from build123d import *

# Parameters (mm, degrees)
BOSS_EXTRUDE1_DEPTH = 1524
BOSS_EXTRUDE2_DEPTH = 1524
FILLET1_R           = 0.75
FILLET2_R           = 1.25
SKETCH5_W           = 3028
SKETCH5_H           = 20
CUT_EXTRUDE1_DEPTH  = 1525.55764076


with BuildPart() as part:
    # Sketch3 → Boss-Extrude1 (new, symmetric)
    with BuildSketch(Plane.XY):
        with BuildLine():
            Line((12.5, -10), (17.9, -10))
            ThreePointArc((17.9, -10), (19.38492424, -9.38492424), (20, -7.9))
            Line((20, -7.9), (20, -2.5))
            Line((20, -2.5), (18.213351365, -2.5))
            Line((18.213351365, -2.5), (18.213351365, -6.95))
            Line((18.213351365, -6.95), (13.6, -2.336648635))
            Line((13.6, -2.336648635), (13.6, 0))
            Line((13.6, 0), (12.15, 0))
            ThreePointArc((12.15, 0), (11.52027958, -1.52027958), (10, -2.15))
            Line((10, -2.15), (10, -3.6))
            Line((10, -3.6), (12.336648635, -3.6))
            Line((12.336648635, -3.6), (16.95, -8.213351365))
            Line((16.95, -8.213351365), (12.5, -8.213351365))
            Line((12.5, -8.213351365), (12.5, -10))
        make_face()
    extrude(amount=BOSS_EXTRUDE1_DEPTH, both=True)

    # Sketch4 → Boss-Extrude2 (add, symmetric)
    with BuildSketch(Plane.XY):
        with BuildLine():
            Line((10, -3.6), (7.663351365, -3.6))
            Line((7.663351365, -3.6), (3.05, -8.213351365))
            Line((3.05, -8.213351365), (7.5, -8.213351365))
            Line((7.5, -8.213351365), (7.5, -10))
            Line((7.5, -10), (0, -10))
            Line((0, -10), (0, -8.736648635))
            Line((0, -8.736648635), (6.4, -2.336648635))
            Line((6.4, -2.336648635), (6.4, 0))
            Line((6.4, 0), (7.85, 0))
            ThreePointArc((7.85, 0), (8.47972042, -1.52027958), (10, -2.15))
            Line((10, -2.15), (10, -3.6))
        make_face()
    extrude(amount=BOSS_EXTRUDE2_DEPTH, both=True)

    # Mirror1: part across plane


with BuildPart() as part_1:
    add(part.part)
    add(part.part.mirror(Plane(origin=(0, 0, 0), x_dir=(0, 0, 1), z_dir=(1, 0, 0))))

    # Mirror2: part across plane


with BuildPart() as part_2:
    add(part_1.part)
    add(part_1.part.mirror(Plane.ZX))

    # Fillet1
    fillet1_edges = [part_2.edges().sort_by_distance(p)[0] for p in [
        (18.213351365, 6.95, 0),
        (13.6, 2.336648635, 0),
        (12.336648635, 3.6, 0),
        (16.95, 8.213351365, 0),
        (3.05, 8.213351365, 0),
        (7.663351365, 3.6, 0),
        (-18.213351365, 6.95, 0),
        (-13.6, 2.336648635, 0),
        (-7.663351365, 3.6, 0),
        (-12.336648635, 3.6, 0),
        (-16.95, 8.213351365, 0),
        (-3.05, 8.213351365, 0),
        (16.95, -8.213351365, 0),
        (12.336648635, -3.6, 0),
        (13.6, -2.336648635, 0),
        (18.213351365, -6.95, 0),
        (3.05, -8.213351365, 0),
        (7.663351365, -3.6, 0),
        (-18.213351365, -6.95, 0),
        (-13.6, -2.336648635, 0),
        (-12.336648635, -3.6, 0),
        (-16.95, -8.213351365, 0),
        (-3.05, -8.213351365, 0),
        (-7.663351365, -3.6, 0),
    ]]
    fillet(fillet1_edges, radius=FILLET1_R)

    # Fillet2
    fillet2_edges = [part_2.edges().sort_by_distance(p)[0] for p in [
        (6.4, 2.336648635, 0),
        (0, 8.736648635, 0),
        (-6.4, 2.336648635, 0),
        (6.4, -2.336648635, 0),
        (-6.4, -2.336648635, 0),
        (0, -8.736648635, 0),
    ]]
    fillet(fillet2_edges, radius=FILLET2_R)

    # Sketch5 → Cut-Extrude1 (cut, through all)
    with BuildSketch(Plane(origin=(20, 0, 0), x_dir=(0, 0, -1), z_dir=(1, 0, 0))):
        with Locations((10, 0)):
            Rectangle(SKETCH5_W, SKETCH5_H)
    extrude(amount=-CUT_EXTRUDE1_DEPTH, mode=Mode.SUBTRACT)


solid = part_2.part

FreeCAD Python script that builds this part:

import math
import FreeCAD as App
import Part
import Sketcher

V = App.Vector
Q = App.Units.Quantity


def edges_at(feature, points):
    """Names of the edges that pass closest to the given points."""
    edges = feature.Shape.Edges
    near = lambda p: min(range(len(edges)), key=lambda i: edges[i].distToShape(Part.Vertex(*p))[0])
    return sorted({f"Edge{near(p) + 1}" for p in points})

doc = App.newDocument("Part")
body = doc.addObject("PartDesign::Body", "Body")

sketch1 = body.newObject("Sketcher::SketchObject", "Sketch")
sketch1.AttachmentSupport = (doc.getObject("XY_Plane"), [""])
sketch1.MapMode = "FlatFace"
sketch1.addGeometry([
    Part.LineSegment(V(12.5, -10, 0), V(17.9, -10, 0)),
    Part.ArcOfCircle(Part.Circle(V(17.9, -7.9, 0), V(0, 0, 1), 2.1), math.radians(-90), math.radians(0)),
    Part.LineSegment(V(20, -7.9, 0), V(20, -2.5, 0)),
    Part.LineSegment(V(20, -2.5, 0), V(18.2, -2.5, 0)),
    Part.LineSegment(V(18.2, -2.5, 0), V(18.2, -7, 0)),
    Part.LineSegment(V(18.2, -7, 0), V(13.6, -2.3, 0)),
    Part.LineSegment(V(13.6, -2.3, 0), V(13.6, 0, 0)),
    Part.LineSegment(V(13.6, 0, 0), V(12.2, 0, 0)),
    Part.ArcOfCircle(Part.Circle(V(10, 0, 0), V(0, 0, 1), 2.1), math.radians(-90), math.radians(0)),
    Part.LineSegment(V(10, -2.1, 0), V(10, -3.6, 0)),
    Part.LineSegment(V(10, -3.6, 0), V(12.3, -3.6, 0)),
    Part.LineSegment(V(12.3, -3.6, 0), V(16.9, -8.2, 0)),
    Part.LineSegment(V(16.9, -8.2, 0), V(12.5, -8.2, 0)),
    Part.LineSegment(V(12.5, -8.2, 0), V(12.5, -10, 0)),
], False)
sketch1.addConstraint([
    Sketcher.Constraint("Tangent", 0, 2, 1, 1),
    Sketcher.Constraint("Tangent", 1, 2, 2, 1),
    Sketcher.Constraint("Coincident", 2, 2, 3, 1),
    Sketcher.Constraint("Coincident", 3, 2, 4, 1),
    Sketcher.Constraint("Coincident", 4, 2, 5, 1),
    Sketcher.Constraint("Coincident", 5, 2, 6, 1),
    Sketcher.Constraint("Coincident", 6, 2, 7, 1),
    Sketcher.Constraint("Coincident", 7, 2, 8, 2),
    Sketcher.Constraint("Coincident", 8, 1, 9, 1),
    Sketcher.Constraint("Coincident", 9, 2, 10, 1),
    Sketcher.Constraint("Coincident", 10, 2, 11, 1),
    Sketcher.Constraint("Coincident", 11, 2, 12, 1),
    Sketcher.Constraint("Coincident", 12, 2, 13, 1),
    Sketcher.Constraint("Coincident", 13, 2, 0, 1),
    Sketcher.Constraint("Horizontal", 0),
    Sketcher.Constraint("Vertical", 2),
    Sketcher.Constraint("Horizontal", 3),
    Sketcher.Constraint("Vertical", 4),
    Sketcher.Constraint("Vertical", 6),
    Sketcher.Constraint("Horizontal", 7),
    Sketcher.Constraint("Vertical", 9),
    Sketcher.Constraint("Horizontal", 10),
    Sketcher.Constraint("Horizontal", 12),
    Sketcher.Constraint("Vertical", 13),
    Sketcher.Constraint("PointOnObject", 8, 3, -1),
    Sketcher.Constraint("PointOnObject", 6, 2, -1),
    Sketcher.Constraint("Parallel", 5, 11),
    Sketcher.Constraint("Equal", 0, 2),
    Sketcher.Constraint("Equal", 12, 4),
    Sketcher.Constraint("Equal", 10, 6),
    Sketcher.Constraint("Equal", 7, 9),
    Sketcher.Constraint("Equal", 3, 13),
    Sketcher.Constraint("Equal", 5, 11),
    Sketcher.Constraint("Radius", 1, Q("2.1 mm")),
    Sketcher.Constraint("Angle", 5, Q("135 deg")),
    Sketcher.Constraint("Radius", 8, Q("2.15 mm")),
    Sketcher.Constraint("DistanceX", 0, 1, 0, 2, Q("5.4 mm")),
    Sketcher.Constraint("DistanceX", -1, 1, 8, 3, Q("10 mm")),
    Sketcher.Constraint("DistanceY", 0, 2, -1, 1, Q("10 mm")),
    Sketcher.Constraint("DistanceX", 7, 2, 7, 1, Q("1.45 mm")),
    Sketcher.Constraint("DistanceX", 12, 2, 12, 1, Q("4.45 mm")),
    Sketcher.Constraint("DistanceX", 3, 2, 3, 1, Q("1.786649 mm")),
])
pad1 = body.newObject("PartDesign::Pad", "Pad")
pad1.Profile = sketch1
pad1.Length = 3048
pad1.Midplane = True

sketch2 = body.newObject("Sketcher::SketchObject", "Sketch001")
sketch2.AttachmentSupport = (doc.getObject("XY_Plane"), [""])
sketch2.MapMode = "FlatFace"
sketch2.addGeometry([
    Part.LineSegment(V(7.7, -3.6, 0), V(10, -3.6, 0)),
    Part.LineSegment(V(10, -3.6, 0), V(10, -2.1, 0)),
    Part.ArcOfCircle(Part.Circle(V(10, 0, 0), V(0, 0, 1), 2.1), math.radians(180), math.radians(270)),
    Part.LineSegment(V(7.8, 0, 0), V(6.4, 0, 0)),
    Part.LineSegment(V(6.4, 0, 0), V(6.4, -2.3, 0)),
    Part.LineSegment(V(6.4, -2.3, 0), V(0, -8.7, 0)),
    Part.LineSegment(V(0, -8.7, 0), V(0, -10, 0)),
    Part.LineSegment(V(0, -10, 0), V(7.5, -10, 0)),
    Part.LineSegment(V(7.5, -10, 0), V(7.5, -8.2, 0)),
    Part.LineSegment(V(7.5, -8.2, 0), V(3, -8.2, 0)),
    Part.LineSegment(V(3, -8.2, 0), V(7.7, -3.6, 0)),
], False)
sketch2.addConstraint([
    Sketcher.Constraint("Coincident", 0, 2, 1, 1),
    Sketcher.Constraint("Coincident", 1, 2, 2, 2),
    Sketcher.Constraint("Coincident", 2, 1, 3, 1),
    Sketcher.Constraint("Coincident", 3, 2, 4, 1),
    Sketcher.Constraint("Coincident", 4, 2, 5, 1),
    Sketcher.Constraint("Coincident", 5, 2, 6, 1),
    Sketcher.Constraint("Coincident", 6, 2, 7, 1),
    Sketcher.Constraint("Coincident", 7, 2, 8, 1),
    Sketcher.Constraint("Coincident", 8, 2, 9, 1),
    Sketcher.Constraint("Coincident", 9, 2, 10, 1),
    Sketcher.Constraint("Coincident", 10, 2, 0, 1),
    Sketcher.Constraint("Horizontal", 0),
    Sketcher.Constraint("Vertical", 1),
    Sketcher.Constraint("Horizontal", 3),
    Sketcher.Constraint("Vertical", 4),
    Sketcher.Constraint("Vertical", 6),
    Sketcher.Constraint("Horizontal", 7),
    Sketcher.Constraint("Vertical", 8),
    Sketcher.Constraint("Horizontal", 9),
    Sketcher.Constraint("PointOnObject", 2, 3, -1),
    Sketcher.Constraint("PointOnObject", 2, 1, -1),
    Sketcher.Constraint("PointOnObject", 5, 2, -2),
    Sketcher.Constraint("Parallel", 5, 10),
    Sketcher.Constraint("Vertical", 2, 3, 0, 2),
    Sketcher.Constraint("Equal", 3, 1),
    Sketcher.Constraint("Equal", 0, 4),
    Sketcher.Constraint("Angle", 5, Q("-135 deg")),
    Sketcher.Constraint("Radius", 2, Q("2.15 mm")),
    Sketcher.Constraint("DistanceX", 7, 1, 7, 2, Q("7.5 mm")),
    Sketcher.Constraint("DistanceX", -1, 1, 2, 3, Q("10 mm")),
    Sketcher.Constraint("DistanceY", 6, 2, -1, 1, Q("10 mm")),
    Sketcher.Constraint("DistanceX", 3, 2, 3, 1, Q("1.45 mm")),
    Sketcher.Constraint("DistanceX", 9, 2, 9, 1, Q("4.45 mm")),
    Sketcher.Constraint("DistanceX", 0, 1, 0, 2, Q("2.336649 mm")),
])
pad2 = body.newObject("PartDesign::Pad", "Pad001")
pad2.Profile = sketch2
pad2.Length = 3048
pad2.Midplane = True
body2 = doc.addObject("PartDesign::Body", "Body001")
doc.recompute()

body2.BaseFeature = body
doc.recompute()

mirroring = doc.addObject("Part::Mirroring", "Mirroring")
mirroring.Source = body
mirroring.Base = V(0, 0, 0)
mirroring.Normal = V(1, 0, 0)
body3 = doc.addObject("PartDesign::Body", "Body002")
body3.BaseFeature = mirroring
boolean = body2.newObject("PartDesign::Boolean", "Boolean")
boolean.Type = "Fuse"
boolean.addObjects([body3])
doc.recompute()
body4 = doc.addObject("PartDesign::Body", "Body003")
doc.recompute()

body4.BaseFeature = body2
doc.recompute()

mirroring2 = doc.addObject("Part::Mirroring", "Mirroring001")
mirroring2.Source = body2
mirroring2.Base = V(0, 0, 0)
mirroring2.Normal = V(0, 1, 0)
body5 = doc.addObject("PartDesign::Body", "Body004")
body5.BaseFeature = mirroring2
boolean2 = body4.newObject("PartDesign::Boolean", "Boolean001")
boolean2.Type = "Fuse"
boolean2.addObjects([body5])
doc.recompute()

fillet = body4.newObject("PartDesign::Fillet", "Fillet")
fillet.Base = (boolean2, edges_at(boolean2, [
    (18.213, 6.95, 0),
    (13.6, 2.337, 0),
    (12.337, 3.6, 0),
    (16.95, 8.213, 0),
    (3.05, 8.213, 0),
    (7.663, 3.6, 0),
    (-18.213, 6.95, 0),
    (-13.6, 2.337, 0),
    (-7.663, 3.6, 0),
    (-12.337, 3.6, 0),
    (-16.95, 8.213, 0),
    (-3.05, 8.213, 0),
    (16.95, -8.213, 0),
    (12.337, -3.6, 0),
    (13.6, -2.337, 0),
    (18.213, -6.95, 0),
    (3.05, -8.213, 0),
    (7.663, -3.6, 0),
    (-18.213, -6.95, 0),
    (-13.6, -2.337, 0),
    (-12.337, -3.6, 0),
    (-16.95, -8.213, 0),
    (-3.05, -8.213, 0),
    (-7.663, -3.6, 0),
]))
fillet.Radius = 0.75
doc.recompute()

fillet2 = body4.newObject("PartDesign::Fillet", "Fillet001")
fillet2.Base = (fillet, edges_at(fillet, [
    (6.4, 2.337, 0),
    (0, 8.737, 0),
    (-6.4, 2.337, 0),
    (6.4, -2.337, 0),
    (-6.4, -2.337, 0),
    (0, -8.737, 0),
]))
fillet2.Radius = 1.25

sketch3 = body4.newObject("Sketcher::SketchObject", "Sketch002")
sketch3.AttachmentSupport = (doc.getObject("YZ_Plane003"), [""])
sketch3.MapMode = "FlatFace"
sketch3.AttachmentOffset = App.Placement(V(0, 0, 20), App.Rotation())
sketch3.addGeometry([
    Part.LineSegment(V(10, 1504, 0), V(-10, 1504, 0)),
    Part.LineSegment(V(-10, 1504, 0), V(-10, -1524, 0)),
    Part.LineSegment(V(-10, -1524, 0), V(10, -1524, 0)),
    Part.LineSegment(V(10, -1524, 0), V(10, 1504, 0)),
], False)
sketch3.addConstraint([
    Sketcher.Constraint("Coincident", 0, 2, 1, 1),
    Sketcher.Constraint("Coincident", 1, 2, 2, 1),
    Sketcher.Constraint("Coincident", 2, 2, 3, 1),
    Sketcher.Constraint("Coincident", 3, 2, 0, 1),
    Sketcher.Constraint("Horizontal", 0),
    Sketcher.Constraint("Vertical", 1),
    Sketcher.Constraint("Horizontal", 2),
    Sketcher.Constraint("Vertical", 3),
    Sketcher.Constraint("DistanceX", 0, 2, 0, 1, Q("20 mm")),
    Sketcher.Constraint("DistanceY", 1, 2, 1, 1, Q("3028 mm")),
    Sketcher.Constraint("DistanceX", 0, 2, -1, 1, Q("10 mm")),
    Sketcher.Constraint("DistanceY", -1, 1, 0, 2, Q("1504 mm")),
])
pocket1 = body4.newObject("PartDesign::Pocket", "Pocket")
pocket1.Profile = sketch3
pocket1.Type = "ThroughAll"
mirroring.Visibility = False
mirroring2.Visibility = False

doc.recompute()
